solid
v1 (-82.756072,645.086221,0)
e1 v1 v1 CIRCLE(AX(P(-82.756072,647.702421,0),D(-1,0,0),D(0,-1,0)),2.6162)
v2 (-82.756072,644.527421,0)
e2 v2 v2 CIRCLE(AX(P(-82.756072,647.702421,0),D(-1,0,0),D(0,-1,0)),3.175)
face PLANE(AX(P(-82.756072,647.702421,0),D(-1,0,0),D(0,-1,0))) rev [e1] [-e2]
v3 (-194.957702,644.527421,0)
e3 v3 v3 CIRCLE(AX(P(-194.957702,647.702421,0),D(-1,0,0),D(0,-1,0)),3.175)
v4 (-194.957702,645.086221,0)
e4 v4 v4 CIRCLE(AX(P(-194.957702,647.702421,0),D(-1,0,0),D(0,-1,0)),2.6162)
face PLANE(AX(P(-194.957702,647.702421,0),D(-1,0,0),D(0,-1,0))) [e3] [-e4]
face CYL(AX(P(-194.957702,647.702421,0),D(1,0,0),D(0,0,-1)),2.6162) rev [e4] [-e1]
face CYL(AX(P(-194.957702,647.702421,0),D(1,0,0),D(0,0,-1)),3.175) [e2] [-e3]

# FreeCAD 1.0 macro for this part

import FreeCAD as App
import Part
import Sketcher
from FreeCAD import Vector
Q = App.Units.Quantity

doc = App.newDocument("Part")
body = doc.addObject("PartDesign::Body", "Body")

sketch1 = body.newObject("Sketcher::SketchObject", "Sketch")
sketch1.AttachmentSupport = (doc.getObject("YZ_Plane"), [""])
sketch1.MapMode = "FlatFace"
sketch1.AttachmentOffset = App.Placement(Vector(0, 0, -82.756072), App.Rotation())
sketch1.addGeometry(Part.Circle(Vector(647.7, 0, 0), Vector(0, 0, 1), 3.2), False)
sketch1.addGeometry(Part.Circle(Vector(647.7, 0, 0), Vector(0, 0, 1), 2.6), False)
sketch1.addConstraint(Sketcher.Constraint("Coincident", 1, 3, 0, 3))
sketch1.addConstraint(Sketcher.Constraint("PointOnObject", 0, 3, -1))
sketch1.addConstraint(Sketcher.Constraint("Diameter", 0, Q("0.25 in")))
sketch1.addConstraint(Sketcher.Constraint("Diameter", 1, Q("0.206 in")))
sketch1.addConstraint(Sketcher.Constraint("DistanceX", -1, 1, 0, 3, 647.702421))
pad1 = body.newObject("PartDesign::Pad", "Pad")
pad1.Profile = sketch1
pad1.Length = 112.20163
pad1.Reversed = True

doc.recompute()
